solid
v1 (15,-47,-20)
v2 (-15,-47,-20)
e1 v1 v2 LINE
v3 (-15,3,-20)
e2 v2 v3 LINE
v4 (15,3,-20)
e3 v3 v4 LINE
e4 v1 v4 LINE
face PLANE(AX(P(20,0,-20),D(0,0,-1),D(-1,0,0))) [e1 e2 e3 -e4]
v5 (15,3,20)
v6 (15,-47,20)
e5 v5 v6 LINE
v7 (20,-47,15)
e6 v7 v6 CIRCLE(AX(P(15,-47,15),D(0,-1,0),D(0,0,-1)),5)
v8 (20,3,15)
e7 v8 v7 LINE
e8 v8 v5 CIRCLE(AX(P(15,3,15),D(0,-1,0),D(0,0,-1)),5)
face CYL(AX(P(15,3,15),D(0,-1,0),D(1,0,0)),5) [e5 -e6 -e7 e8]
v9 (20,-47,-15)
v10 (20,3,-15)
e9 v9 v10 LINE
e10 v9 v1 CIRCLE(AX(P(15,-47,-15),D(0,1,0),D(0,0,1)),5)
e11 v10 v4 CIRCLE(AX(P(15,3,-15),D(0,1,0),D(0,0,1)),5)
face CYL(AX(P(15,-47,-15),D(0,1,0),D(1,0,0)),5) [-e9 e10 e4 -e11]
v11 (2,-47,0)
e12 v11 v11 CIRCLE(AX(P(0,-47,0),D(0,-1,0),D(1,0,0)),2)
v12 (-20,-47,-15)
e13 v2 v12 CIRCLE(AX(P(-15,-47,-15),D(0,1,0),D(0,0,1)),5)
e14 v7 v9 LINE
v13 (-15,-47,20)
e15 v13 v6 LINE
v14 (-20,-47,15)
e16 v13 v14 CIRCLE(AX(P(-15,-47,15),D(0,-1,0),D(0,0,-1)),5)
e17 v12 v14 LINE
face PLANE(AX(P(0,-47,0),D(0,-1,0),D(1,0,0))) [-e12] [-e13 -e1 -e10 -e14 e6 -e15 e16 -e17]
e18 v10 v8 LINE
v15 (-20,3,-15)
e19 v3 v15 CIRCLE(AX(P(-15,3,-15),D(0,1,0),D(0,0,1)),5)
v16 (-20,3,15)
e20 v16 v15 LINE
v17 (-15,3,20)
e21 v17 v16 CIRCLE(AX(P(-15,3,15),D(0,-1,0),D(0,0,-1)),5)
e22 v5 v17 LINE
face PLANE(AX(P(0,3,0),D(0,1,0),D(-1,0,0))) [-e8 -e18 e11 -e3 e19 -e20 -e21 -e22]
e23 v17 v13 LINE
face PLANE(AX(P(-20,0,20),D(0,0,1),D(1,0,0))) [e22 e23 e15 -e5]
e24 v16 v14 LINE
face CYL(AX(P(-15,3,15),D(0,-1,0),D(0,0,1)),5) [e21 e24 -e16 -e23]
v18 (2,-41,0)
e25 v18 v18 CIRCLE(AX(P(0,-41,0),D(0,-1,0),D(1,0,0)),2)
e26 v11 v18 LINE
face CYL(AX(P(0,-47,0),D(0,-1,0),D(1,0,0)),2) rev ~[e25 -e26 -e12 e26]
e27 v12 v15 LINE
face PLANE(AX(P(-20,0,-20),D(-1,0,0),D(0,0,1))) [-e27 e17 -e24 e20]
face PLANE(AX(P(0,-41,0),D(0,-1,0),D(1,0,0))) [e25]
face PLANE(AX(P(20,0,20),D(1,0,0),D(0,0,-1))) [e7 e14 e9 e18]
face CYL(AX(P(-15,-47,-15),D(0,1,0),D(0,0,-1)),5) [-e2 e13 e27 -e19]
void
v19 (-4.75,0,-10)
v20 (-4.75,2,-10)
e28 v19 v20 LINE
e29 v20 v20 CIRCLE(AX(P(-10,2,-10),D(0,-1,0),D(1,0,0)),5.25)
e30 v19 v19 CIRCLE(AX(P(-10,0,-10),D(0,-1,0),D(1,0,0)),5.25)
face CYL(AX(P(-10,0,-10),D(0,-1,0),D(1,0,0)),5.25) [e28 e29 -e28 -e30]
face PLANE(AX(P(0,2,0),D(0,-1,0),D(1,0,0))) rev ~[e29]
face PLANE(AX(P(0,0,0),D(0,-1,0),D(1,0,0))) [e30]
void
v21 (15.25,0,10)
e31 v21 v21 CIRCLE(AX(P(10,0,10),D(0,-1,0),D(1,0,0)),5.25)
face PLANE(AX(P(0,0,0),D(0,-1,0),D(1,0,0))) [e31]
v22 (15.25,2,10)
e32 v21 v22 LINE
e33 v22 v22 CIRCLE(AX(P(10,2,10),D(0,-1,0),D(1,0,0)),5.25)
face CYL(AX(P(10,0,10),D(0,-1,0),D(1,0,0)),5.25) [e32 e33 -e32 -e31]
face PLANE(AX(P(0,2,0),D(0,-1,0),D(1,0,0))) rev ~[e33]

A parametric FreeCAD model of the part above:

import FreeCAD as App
import Part
import Sketcher

V = App.Vector
Q = App.Units.Quantity


def edges_at(feature, points):
    """Names of the edges that pass closest to the given points."""
    edges = feature.Shape.Edges
    near = lambda p: min(range(len(edges)), key=lambda i: edges[i].distToShape(Part.Vertex(*p))[0])
    return sorted({f"Edge{near(p) + 1}" for p in points})

doc = App.newDocument("Part")
params = doc.addObject("Spreadsheet::Sheet", "Params")
for row, (alias, value) in enumerate([
    ("sketch1_width", "40 mm"),
    ("pad1_length", "3 mm"),
    ("sketch2_diameter", "10.5 mm"),
    ("pocket1_length", "2 mm"),
    ("sketch3_width", "40 mm"),
    ("pad2_length", "47 mm"),
    ("sketch4_diameter", "4 mm"),
    ("pocket2_length", "6 mm"),
    ("fillet_radius", "5 mm"),
], start=1):
    params.set(f"A{row}", alias)
    params.set(f"B{row}", "=" + value)
    params.setAlias(f"B{row}", alias)

body = doc.addObject("PartDesign::Body", "Body")

# Sketch on XZ plane
sketch1 = body.newObject("Sketcher::SketchObject", "Sketch")
sketch1.AttachmentSupport = (doc.getObject("XZ_Plane"), [""])
sketch1.MapMode = "FlatFace"
sketch1.addGeometry([
    Part.LineSegment(V(-20, 20, 0), V(20, 20, 0)),
    Part.LineSegment(V(20, 20, 0), V(20, -20, 0)),
    Part.LineSegment(V(20, -20, 0), V(-20, -20, 0)),
    Part.LineSegment(V(-20, -20, 0), V(-20, 20, 0)),
], False)
sketch1.addConstraint([
    Sketcher.Constraint("Coincident", 0, 2, 1, 1),
    Sketcher.Constraint("Coincident", 1, 2, 2, 1),
    Sketcher.Constraint("Coincident", 2, 2, 3, 1),
    Sketcher.Constraint("Coincident", 3, 2, 0, 1),
    Sketcher.Constraint("Horizontal", 0),
    Sketcher.Constraint("Vertical", 1),
    Sketcher.Constraint("Horizontal", 2),
    Sketcher.Constraint("Vertical", 3),
    Sketcher.Constraint("Symmetric", 0, 2, 2, 2, -1, 1),
    Sketcher.Constraint("Equal", 2, 1),
    Sketcher.Constraint("DistanceX", 0, 1, 0, 2, Q("40 mm")),
])
sketch1.setExpression("Constraints[10]", "Params.sketch1_width")
pad1 = body.newObject("PartDesign::Pad", "Pad")
pad1.Profile = sketch1
pad1.setExpression("Length", "Params.pad1_length")
pad1.Reversed = True

# Sketch on XZ plane
sketch2 = body.newObject("Sketcher::SketchObject", "Sketch001")
sketch2.AttachmentSupport = (doc.getObject("XZ_Plane"), [""])
sketch2.MapMode = "FlatFace"
sketch2.addGeometry([
    Part.Circle(V(10, 10, 0), V(0, 0, 1), 5),
    Part.Circle(V(-10, -10, 0), V(0, 0, 1), 5),
], False)
sketch2.addConstraint([
    Sketcher.Constraint("Equal", 0, 1),
    Sketcher.Constraint("Symmetric", 0, 3, 1, 3, -1, 1),
    Sketcher.Constraint("Diameter", 0, Q("10.5 mm")),
    Sketcher.Constraint("DistanceX", -1, 1, 0, 3, Q("10 mm")),
    Sketcher.Constraint("DistanceY", -1, 1, 0, 3, Q("10 mm")),
])
sketch2.setExpression("Constraints[2]", "Params.sketch2_diameter")
pocket1 = body.newObject("PartDesign::Pocket", "Pocket")
pocket1.Profile = sketch2
pocket1.setExpression("Length", "Params.pocket1_length")

# Sketch on XZ plane
sketch3 = body.newObject("Sketcher::SketchObject", "Sketch002")
sketch3.AttachmentSupport = (doc.getObject("XZ_Plane"), [""])
sketch3.MapMode = "FlatFace"
sketch3.addGeometry([
    Part.LineSegment(V(20, -20, 0), V(20, 20, 0)),
    Part.LineSegment(V(20, 20, 0), V(-20, 20, 0)),
    Part.LineSegment(V(-20, 20, 0), V(-20, -20, 0)),
    Part.LineSegment(V(-20, -20, 0), V(20, -20, 0)),
], False)
sketch3.addConstraint([
    Sketcher.Constraint("Coincident", 0, 2, 1, 1),
    Sketcher.Constraint("Coincident", 1, 2, 2, 1),
    Sketcher.Constraint("Coincident", 2, 2, 3, 1),
    Sketcher.Constraint("Coincident", 3, 2, 0, 1),
    Sketcher.Constraint("Vertical", 0),
    Sketcher.Constraint("Horizontal", 1),
    Sketcher.Constraint("Vertical", 2),
    Sketcher.Constraint("Horizontal", 3),
    Sketcher.Constraint("Symmetric", 0, 2, 2, 2, -1, 1),
    Sketcher.Constraint("Equal", 3, 0),
    Sketcher.Constraint("DistanceX", 1, 2, 1, 1, Q("40 mm")),
])
sketch3.setExpression("Constraints[10]", "Params.sketch3_width")
pad2 = body.newObject("PartDesign::Pad", "Pad001")
pad2.Profile = sketch3
pad2.setExpression("Length", "Params.pad2_length")

# Sketch on XZ plane
sketch4 = body.newObject("Sketcher::SketchObject", "Sketch003")
sketch4.AttachmentSupport = (doc.getObject("XZ_Plane"), [""])
sketch4.MapMode = "FlatFace"
sketch4.AttachmentOffset = App.Placement(V(0, 0, 47), App.Rotation())
sketch4.addGeometry(Part.Circle(V(0, 0, 0), V(0, 0, 1), 2), False)
sketch4.addConstraint([
    Sketcher.Constraint("Coincident", 0, 3, -1, 1),
    Sketcher.Constraint("Diameter", 0, Q("4 mm")),
])
sketch4.setExpression("Constraints[1]", "Params.sketch4_diameter")
pocket2 = body.newObject("PartDesign::Pocket", "Pocket001")
pocket2.Profile = sketch4
pocket2.setExpression("Length", "Params.pocket2_length")
doc.recompute()

fillet = body.newObject("PartDesign::Fillet", "Fillet")
fillet.Base = (pocket2, edges_at(pocket2, [
    (-20, -22, 20),
    (-20, -22, -20),
    (20, -22, -20),
    (20, -22, 20),
]))
fillet.setExpression("Radius", "Params.fillet_radius")

doc.recompute()
